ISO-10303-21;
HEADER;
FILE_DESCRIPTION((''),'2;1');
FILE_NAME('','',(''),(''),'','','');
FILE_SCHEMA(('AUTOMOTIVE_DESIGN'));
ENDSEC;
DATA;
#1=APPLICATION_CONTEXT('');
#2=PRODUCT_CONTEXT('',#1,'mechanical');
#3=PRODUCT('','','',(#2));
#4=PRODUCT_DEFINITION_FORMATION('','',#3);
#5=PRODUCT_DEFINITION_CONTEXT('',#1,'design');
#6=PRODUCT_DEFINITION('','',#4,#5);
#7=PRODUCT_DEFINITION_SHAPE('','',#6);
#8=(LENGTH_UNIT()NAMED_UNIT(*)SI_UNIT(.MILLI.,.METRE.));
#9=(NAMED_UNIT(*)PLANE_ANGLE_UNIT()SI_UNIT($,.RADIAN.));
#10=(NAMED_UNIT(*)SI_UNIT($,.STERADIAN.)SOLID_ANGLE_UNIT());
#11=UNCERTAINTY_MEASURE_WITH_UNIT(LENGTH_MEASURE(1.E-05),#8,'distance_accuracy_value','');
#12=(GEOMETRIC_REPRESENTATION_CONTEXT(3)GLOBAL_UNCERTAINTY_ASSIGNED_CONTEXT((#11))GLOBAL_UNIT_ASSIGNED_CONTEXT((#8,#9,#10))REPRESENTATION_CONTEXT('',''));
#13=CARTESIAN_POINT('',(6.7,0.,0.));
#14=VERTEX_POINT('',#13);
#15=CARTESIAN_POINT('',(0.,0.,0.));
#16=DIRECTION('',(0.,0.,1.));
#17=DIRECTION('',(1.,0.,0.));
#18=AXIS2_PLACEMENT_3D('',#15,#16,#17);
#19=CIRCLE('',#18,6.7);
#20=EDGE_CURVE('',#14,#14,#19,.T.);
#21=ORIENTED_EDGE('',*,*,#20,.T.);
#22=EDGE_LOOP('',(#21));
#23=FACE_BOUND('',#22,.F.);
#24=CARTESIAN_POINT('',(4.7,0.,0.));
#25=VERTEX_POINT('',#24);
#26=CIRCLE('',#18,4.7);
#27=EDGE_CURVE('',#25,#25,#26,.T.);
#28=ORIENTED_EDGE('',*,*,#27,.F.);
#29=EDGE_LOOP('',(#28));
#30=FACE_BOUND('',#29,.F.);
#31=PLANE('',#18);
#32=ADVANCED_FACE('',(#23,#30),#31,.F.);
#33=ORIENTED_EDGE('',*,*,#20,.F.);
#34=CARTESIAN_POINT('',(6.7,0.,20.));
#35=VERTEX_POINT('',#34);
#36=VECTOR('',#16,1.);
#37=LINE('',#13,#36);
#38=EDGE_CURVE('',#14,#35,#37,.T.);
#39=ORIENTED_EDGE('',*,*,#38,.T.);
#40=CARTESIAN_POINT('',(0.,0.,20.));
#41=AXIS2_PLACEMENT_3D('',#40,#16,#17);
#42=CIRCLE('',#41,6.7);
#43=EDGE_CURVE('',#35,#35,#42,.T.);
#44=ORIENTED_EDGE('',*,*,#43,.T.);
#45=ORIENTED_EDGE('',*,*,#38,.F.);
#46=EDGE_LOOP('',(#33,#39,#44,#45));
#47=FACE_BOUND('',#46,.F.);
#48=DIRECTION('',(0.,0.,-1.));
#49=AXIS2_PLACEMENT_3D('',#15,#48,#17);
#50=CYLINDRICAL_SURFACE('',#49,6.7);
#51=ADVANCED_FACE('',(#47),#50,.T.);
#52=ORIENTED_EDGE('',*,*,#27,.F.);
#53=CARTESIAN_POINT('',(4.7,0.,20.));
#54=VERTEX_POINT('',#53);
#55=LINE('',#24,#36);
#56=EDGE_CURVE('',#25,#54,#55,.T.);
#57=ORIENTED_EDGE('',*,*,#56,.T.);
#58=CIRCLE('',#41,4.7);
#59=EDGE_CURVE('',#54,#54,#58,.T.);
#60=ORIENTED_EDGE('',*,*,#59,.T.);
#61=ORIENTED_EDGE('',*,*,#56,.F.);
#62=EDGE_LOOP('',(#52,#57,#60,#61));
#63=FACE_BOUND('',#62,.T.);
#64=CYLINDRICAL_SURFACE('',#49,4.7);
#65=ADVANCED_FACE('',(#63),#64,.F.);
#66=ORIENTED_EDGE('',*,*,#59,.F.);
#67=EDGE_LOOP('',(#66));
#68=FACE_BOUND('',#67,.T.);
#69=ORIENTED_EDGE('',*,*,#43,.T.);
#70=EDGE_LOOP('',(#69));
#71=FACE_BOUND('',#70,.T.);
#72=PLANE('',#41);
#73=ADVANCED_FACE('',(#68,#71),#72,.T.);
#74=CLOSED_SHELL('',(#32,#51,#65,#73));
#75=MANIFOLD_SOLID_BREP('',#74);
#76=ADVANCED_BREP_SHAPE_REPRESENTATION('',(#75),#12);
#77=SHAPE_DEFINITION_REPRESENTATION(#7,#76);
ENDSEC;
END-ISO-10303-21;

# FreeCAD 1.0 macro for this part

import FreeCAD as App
import Part
import Sketcher
from FreeCAD import Vector
Q = App.Units.Quantity

doc = App.newDocument("Part")
body = doc.addObject("PartDesign::Body", "Body")

# Sketch on XY plane
sketch1 = body.newObject("Sketcher::SketchObject", "Sketch")
sketch1.AttachmentSupport = (doc.getObject("XY_Plane"), [""])
sketch1.MapMode = "FlatFace"
sketch1.addGeometry([
    Part.Circle(Vector(0, 0, 0), Vector(0, 0, 1), 6.7),
    Part.Circle(Vector(0, 0, 0), Vector(0, 0, 1), 4.7),
], False)
sketch1.addConstraint([
    Sketcher.Constraint("Coincident", 0, 3, -1, 1),
    Sketcher.Constraint("Coincident", 1, 3, -1, 1),
    Sketcher.Constraint("Diameter", 0, Q("13.4 mm")),
    Sketcher.Constraint("Diameter", 1, Q("9.4 mm")),
])
pad1 = body.newObject("PartDesign::Pad", "Pad")
pad1.Profile = sketch1
pad1.Length = 20

doc.recompute()
